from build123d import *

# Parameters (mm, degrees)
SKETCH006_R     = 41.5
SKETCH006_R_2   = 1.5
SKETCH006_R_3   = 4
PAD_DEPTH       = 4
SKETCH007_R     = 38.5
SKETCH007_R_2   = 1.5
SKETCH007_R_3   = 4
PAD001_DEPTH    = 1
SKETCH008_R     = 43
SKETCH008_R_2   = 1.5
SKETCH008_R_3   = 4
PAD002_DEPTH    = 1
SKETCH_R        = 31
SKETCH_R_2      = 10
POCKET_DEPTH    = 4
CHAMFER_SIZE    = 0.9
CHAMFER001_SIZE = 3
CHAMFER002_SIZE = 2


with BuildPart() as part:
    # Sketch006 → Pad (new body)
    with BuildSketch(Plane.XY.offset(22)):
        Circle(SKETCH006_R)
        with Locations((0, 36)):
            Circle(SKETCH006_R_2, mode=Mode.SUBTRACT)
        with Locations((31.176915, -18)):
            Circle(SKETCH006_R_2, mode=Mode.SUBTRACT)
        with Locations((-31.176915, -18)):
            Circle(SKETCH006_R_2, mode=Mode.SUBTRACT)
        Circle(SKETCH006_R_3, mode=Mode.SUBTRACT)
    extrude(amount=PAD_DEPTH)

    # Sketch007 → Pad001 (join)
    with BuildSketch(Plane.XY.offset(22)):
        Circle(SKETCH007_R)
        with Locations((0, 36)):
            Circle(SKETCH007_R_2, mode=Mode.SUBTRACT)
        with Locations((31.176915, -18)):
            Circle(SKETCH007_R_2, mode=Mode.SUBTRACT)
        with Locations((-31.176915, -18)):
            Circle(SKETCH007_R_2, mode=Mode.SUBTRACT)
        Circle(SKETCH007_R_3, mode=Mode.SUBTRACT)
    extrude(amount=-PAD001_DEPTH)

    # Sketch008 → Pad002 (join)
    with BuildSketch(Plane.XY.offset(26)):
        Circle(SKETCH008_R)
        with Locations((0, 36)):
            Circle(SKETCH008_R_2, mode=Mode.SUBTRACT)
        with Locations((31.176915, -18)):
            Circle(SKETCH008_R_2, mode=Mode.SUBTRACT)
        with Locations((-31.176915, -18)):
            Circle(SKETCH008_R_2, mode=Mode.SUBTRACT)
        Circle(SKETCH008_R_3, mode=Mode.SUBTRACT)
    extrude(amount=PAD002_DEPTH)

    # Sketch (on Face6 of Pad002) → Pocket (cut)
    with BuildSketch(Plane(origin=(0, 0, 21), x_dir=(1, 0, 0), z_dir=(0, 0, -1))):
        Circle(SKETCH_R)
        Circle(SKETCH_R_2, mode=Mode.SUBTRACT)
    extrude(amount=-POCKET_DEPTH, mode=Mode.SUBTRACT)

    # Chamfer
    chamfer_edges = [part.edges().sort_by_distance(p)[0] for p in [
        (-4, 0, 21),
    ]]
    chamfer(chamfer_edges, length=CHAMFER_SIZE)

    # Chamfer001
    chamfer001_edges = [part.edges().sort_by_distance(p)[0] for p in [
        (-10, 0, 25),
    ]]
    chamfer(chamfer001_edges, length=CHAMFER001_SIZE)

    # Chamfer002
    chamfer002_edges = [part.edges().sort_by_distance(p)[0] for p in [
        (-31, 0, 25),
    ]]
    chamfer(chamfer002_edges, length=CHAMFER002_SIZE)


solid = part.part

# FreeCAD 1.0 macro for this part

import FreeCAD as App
import Part
import Sketcher

V = App.Vector


def edges_at(feature, points):
    """Names of the edges that pass closest to the given points."""
    edges = feature.Shape.Edges
    near = lambda p: min(range(len(edges)), key=lambda i: edges[i].distToShape(Part.Vertex(*p))[0])
    return sorted({f"Edge{near(p) + 1}" for p in points})

doc = App.newDocument("Part")
body = doc.addObject("PartDesign::Body", "Body")

# Sketch on XY plane
sketch1 = body.newObject("Sketcher::SketchObject", "Sketch")
sketch1.AttachmentSupport = (doc.getObject("XY_Plane"), [""])
sketch1.MapMode = "FlatFace"
sketch1.AttachmentOffset = App.Placement(V(0, 0, 22), App.Rotation())
sketch1.addGeometry([
    Part.Circle(V(0, 0, 0), V(0, 0, 1), 41.5),  # 0
    Part.Circle(V(-31.2, -18, 0), V(0, 0, 1), 1.5),  # 1
    Part.Circle(V(0, 0, 0), V(0, 0, 1), 4),  # 2
    Part.Circle(V(31.2, -18, 0), V(0, 0, 1), 1.5),  # 3
    Part.Circle(V(0, 36, 0), V(0, 0, 1), 1.5),  # 4
], False)
sketch1.addConstraint([
    Sketcher.Constraint("Coincident", 0, 3, -1, 1),
    Sketcher.Constraint("Coincident", 2, 3, -1, 1),
    Sketcher.Constraint("Equal", 1, 3),
    Sketcher.Constraint("Equal", 3, 4),
    Sketcher.Constraint("Symmetric", 1, 3, 3, 3, -2),
    Sketcher.Constraint("PointOnObject", 4, 3, -2),
    Sketcher.Constraint("Diameter", 0, 83.0),
    Sketcher.Constraint("Diameter", 1, 3.0),
    Sketcher.Constraint("Diameter", 2, 8.0),
    Sketcher.Constraint("DistanceY", 1, 3, -1, 1, 18.0),
    Sketcher.Constraint("DistanceY", -1, 1, 4, 3, 36.0),
    Sketcher.Constraint("DistanceX", 1, 3, 3, 3, 62.35383),
])
pad1 = body.newObject("PartDesign::Pad", "Pad")
pad1.Profile = sketch1
pad1.Length = 4

# Sketch on XY plane
sketch2 = body.newObject("Sketcher::SketchObject", "Sketch001")
sketch2.AttachmentSupport = (doc.getObject("XY_Plane"), [""])
sketch2.MapMode = "FlatFace"
sketch2.AttachmentOffset = App.Placement(V(0, 0, 22), App.Rotation())
sketch2.addGeometry([
    Part.Circle(V(0, 0, 0), V(0, 0, 1), 38.5),  # 0
    Part.Circle(V(-31.2, -18, 0), V(0, 0, 1), 1.5),  # 1
    Part.Circle(V(0, 0, 0), V(0, 0, 1), 4),  # 2
    Part.Circle(V(31.2, -18, 0), V(0, 0, 1), 1.5),  # 3
    Part.Circle(V(0, 36, 0), V(0, 0, 1), 1.5),  # 4
], False)
sketch2.addConstraint([
    Sketcher.Constraint("Coincident", 0, 3, -1, 1),
    Sketcher.Constraint("Coincident", 2, 3, -1, 1),
    Sketcher.Constraint("Equal", 1, 3),
    Sketcher.Constraint("Equal", 3, 4),
    Sketcher.Constraint("Symmetric", 1, 3, 3, 3, -2),
    Sketcher.Constraint("PointOnObject", 4, 3, -2),
    Sketcher.Constraint("Diameter", 0, 77.0),
    Sketcher.Constraint("Diameter", 1, 3.0),
    Sketcher.Constraint("Diameter", 2, 8.0),
    Sketcher.Constraint("DistanceY", 1, 3, -1, 1, 18.0),
    Sketcher.Constraint("DistanceY", -1, 1, 4, 3, 36.0),
    Sketcher.Constraint("DistanceX", 1, 3, 3, 3, 62.35383),
])
pad2 = body.newObject("PartDesign::Pad", "Pad001")
pad2.Profile = sketch2
pad2.Length = 1
pad2.Reversed = True

# Sketch on XY plane
sketch3 = body.newObject("Sketcher::SketchObject", "Sketch002")
sketch3.AttachmentSupport = (doc.getObject("XY_Plane"), [""])
sketch3.MapMode = "FlatFace"
sketch3.AttachmentOffset = App.Placement(V(0, 0, 26), App.Rotation())
sketch3.addGeometry([
    Part.Circle(V(0, 0, 0), V(0, 0, 1), 43),  # 0
    Part.Circle(V(-31.2, -18, 0), V(0, 0, 1), 1.5),  # 1
    Part.Circle(V(31.2, -18, 0), V(0, 0, 1), 1.5),  # 2
    Part.Circle(V(0, 0, 0), V(0, 0, 1), 4),  # 3
    Part.Circle(V(0, 36, 0), V(0, 0, 1), 1.5),  # 4
], False)
sketch3.addConstraint([
    Sketcher.Constraint("Coincident", 0, 3, -1, 1),
    Sketcher.Constraint("Coincident", 3, 3, -1, 1),
    Sketcher.Constraint("Equal", 1, 2),
    Sketcher.Constraint("Equal", 2, 4),
    Sketcher.Constraint("Symmetric", 1, 3, 2, 3, -2),
    Sketcher.Constraint("PointOnObject", 4, 3, -2),
    Sketcher.Constraint("Diameter", 0, 86.0),
    Sketcher.Constraint("Diameter", 1, 3.0),
    Sketcher.Constraint("Diameter", 3, 8.0),
    Sketcher.Constraint("DistanceY", 1, 3, -1, 1, 18.0),
    Sketcher.Constraint("DistanceY", -1, 1, 4, 3, 36.0),
    Sketcher.Constraint("DistanceX", 1, 3, 2, 3, 62.35383),
])
pad3 = body.newObject("PartDesign::Pad", "Pad002")
pad3.Profile = sketch3
pad3.Length = 1

# Sketch on XY plane
sketch4 = body.newObject("Sketcher::SketchObject", "Sketch003")
sketch4.AttachmentSupport = (doc.getObject("XY_Plane"), [""])
sketch4.MapMode = "FlatFace"
sketch4.AttachmentOffset = App.Placement(V(0, 0, 21), App.Rotation())
sketch4.addGeometry([
    Part.Circle(V(0, 0, 0), V(0, 0, 1), 31),
    Part.Circle(V(0, 0, 0), V(0, 0, 1), 10),
], False)
sketch4.addConstraint([
    Sketcher.Constraint("Coincident", 0, 3, -1, 1),
    Sketcher.Constraint("Coincident", 1, 3, -1, 1),
    Sketcher.Constraint("Diameter", 0, 62.0),
    Sketcher.Constraint("Diameter", 1, 20.0),
])
pocket1 = body.newObject("PartDesign::Pocket", "Pocket")
pocket1.Profile = sketch4
pocket1.Length = 4
pocket1.Reversed = True
doc.recompute()

chamfer = body.newObject("PartDesign::Chamfer", "Chamfer")
chamfer.Base = (pocket1, edges_at(pocket1, [(-4, 0, 21)]))
chamfer.Size = 0.9
doc.recompute()

chamfer2 = body.newObject("PartDesign::Chamfer", "Chamfer001")
chamfer2.Base = (chamfer, edges_at(chamfer, [(-10, 0, 25)]))
chamfer2.Size = 3
doc.recompute()

chamfer3 = body.newObject("PartDesign::Chamfer", "Chamfer002")
chamfer3.Base = (chamfer2, edges_at(chamfer2, [(-31, 0, 25)]))
chamfer3.Size = 2

doc.recompute()
